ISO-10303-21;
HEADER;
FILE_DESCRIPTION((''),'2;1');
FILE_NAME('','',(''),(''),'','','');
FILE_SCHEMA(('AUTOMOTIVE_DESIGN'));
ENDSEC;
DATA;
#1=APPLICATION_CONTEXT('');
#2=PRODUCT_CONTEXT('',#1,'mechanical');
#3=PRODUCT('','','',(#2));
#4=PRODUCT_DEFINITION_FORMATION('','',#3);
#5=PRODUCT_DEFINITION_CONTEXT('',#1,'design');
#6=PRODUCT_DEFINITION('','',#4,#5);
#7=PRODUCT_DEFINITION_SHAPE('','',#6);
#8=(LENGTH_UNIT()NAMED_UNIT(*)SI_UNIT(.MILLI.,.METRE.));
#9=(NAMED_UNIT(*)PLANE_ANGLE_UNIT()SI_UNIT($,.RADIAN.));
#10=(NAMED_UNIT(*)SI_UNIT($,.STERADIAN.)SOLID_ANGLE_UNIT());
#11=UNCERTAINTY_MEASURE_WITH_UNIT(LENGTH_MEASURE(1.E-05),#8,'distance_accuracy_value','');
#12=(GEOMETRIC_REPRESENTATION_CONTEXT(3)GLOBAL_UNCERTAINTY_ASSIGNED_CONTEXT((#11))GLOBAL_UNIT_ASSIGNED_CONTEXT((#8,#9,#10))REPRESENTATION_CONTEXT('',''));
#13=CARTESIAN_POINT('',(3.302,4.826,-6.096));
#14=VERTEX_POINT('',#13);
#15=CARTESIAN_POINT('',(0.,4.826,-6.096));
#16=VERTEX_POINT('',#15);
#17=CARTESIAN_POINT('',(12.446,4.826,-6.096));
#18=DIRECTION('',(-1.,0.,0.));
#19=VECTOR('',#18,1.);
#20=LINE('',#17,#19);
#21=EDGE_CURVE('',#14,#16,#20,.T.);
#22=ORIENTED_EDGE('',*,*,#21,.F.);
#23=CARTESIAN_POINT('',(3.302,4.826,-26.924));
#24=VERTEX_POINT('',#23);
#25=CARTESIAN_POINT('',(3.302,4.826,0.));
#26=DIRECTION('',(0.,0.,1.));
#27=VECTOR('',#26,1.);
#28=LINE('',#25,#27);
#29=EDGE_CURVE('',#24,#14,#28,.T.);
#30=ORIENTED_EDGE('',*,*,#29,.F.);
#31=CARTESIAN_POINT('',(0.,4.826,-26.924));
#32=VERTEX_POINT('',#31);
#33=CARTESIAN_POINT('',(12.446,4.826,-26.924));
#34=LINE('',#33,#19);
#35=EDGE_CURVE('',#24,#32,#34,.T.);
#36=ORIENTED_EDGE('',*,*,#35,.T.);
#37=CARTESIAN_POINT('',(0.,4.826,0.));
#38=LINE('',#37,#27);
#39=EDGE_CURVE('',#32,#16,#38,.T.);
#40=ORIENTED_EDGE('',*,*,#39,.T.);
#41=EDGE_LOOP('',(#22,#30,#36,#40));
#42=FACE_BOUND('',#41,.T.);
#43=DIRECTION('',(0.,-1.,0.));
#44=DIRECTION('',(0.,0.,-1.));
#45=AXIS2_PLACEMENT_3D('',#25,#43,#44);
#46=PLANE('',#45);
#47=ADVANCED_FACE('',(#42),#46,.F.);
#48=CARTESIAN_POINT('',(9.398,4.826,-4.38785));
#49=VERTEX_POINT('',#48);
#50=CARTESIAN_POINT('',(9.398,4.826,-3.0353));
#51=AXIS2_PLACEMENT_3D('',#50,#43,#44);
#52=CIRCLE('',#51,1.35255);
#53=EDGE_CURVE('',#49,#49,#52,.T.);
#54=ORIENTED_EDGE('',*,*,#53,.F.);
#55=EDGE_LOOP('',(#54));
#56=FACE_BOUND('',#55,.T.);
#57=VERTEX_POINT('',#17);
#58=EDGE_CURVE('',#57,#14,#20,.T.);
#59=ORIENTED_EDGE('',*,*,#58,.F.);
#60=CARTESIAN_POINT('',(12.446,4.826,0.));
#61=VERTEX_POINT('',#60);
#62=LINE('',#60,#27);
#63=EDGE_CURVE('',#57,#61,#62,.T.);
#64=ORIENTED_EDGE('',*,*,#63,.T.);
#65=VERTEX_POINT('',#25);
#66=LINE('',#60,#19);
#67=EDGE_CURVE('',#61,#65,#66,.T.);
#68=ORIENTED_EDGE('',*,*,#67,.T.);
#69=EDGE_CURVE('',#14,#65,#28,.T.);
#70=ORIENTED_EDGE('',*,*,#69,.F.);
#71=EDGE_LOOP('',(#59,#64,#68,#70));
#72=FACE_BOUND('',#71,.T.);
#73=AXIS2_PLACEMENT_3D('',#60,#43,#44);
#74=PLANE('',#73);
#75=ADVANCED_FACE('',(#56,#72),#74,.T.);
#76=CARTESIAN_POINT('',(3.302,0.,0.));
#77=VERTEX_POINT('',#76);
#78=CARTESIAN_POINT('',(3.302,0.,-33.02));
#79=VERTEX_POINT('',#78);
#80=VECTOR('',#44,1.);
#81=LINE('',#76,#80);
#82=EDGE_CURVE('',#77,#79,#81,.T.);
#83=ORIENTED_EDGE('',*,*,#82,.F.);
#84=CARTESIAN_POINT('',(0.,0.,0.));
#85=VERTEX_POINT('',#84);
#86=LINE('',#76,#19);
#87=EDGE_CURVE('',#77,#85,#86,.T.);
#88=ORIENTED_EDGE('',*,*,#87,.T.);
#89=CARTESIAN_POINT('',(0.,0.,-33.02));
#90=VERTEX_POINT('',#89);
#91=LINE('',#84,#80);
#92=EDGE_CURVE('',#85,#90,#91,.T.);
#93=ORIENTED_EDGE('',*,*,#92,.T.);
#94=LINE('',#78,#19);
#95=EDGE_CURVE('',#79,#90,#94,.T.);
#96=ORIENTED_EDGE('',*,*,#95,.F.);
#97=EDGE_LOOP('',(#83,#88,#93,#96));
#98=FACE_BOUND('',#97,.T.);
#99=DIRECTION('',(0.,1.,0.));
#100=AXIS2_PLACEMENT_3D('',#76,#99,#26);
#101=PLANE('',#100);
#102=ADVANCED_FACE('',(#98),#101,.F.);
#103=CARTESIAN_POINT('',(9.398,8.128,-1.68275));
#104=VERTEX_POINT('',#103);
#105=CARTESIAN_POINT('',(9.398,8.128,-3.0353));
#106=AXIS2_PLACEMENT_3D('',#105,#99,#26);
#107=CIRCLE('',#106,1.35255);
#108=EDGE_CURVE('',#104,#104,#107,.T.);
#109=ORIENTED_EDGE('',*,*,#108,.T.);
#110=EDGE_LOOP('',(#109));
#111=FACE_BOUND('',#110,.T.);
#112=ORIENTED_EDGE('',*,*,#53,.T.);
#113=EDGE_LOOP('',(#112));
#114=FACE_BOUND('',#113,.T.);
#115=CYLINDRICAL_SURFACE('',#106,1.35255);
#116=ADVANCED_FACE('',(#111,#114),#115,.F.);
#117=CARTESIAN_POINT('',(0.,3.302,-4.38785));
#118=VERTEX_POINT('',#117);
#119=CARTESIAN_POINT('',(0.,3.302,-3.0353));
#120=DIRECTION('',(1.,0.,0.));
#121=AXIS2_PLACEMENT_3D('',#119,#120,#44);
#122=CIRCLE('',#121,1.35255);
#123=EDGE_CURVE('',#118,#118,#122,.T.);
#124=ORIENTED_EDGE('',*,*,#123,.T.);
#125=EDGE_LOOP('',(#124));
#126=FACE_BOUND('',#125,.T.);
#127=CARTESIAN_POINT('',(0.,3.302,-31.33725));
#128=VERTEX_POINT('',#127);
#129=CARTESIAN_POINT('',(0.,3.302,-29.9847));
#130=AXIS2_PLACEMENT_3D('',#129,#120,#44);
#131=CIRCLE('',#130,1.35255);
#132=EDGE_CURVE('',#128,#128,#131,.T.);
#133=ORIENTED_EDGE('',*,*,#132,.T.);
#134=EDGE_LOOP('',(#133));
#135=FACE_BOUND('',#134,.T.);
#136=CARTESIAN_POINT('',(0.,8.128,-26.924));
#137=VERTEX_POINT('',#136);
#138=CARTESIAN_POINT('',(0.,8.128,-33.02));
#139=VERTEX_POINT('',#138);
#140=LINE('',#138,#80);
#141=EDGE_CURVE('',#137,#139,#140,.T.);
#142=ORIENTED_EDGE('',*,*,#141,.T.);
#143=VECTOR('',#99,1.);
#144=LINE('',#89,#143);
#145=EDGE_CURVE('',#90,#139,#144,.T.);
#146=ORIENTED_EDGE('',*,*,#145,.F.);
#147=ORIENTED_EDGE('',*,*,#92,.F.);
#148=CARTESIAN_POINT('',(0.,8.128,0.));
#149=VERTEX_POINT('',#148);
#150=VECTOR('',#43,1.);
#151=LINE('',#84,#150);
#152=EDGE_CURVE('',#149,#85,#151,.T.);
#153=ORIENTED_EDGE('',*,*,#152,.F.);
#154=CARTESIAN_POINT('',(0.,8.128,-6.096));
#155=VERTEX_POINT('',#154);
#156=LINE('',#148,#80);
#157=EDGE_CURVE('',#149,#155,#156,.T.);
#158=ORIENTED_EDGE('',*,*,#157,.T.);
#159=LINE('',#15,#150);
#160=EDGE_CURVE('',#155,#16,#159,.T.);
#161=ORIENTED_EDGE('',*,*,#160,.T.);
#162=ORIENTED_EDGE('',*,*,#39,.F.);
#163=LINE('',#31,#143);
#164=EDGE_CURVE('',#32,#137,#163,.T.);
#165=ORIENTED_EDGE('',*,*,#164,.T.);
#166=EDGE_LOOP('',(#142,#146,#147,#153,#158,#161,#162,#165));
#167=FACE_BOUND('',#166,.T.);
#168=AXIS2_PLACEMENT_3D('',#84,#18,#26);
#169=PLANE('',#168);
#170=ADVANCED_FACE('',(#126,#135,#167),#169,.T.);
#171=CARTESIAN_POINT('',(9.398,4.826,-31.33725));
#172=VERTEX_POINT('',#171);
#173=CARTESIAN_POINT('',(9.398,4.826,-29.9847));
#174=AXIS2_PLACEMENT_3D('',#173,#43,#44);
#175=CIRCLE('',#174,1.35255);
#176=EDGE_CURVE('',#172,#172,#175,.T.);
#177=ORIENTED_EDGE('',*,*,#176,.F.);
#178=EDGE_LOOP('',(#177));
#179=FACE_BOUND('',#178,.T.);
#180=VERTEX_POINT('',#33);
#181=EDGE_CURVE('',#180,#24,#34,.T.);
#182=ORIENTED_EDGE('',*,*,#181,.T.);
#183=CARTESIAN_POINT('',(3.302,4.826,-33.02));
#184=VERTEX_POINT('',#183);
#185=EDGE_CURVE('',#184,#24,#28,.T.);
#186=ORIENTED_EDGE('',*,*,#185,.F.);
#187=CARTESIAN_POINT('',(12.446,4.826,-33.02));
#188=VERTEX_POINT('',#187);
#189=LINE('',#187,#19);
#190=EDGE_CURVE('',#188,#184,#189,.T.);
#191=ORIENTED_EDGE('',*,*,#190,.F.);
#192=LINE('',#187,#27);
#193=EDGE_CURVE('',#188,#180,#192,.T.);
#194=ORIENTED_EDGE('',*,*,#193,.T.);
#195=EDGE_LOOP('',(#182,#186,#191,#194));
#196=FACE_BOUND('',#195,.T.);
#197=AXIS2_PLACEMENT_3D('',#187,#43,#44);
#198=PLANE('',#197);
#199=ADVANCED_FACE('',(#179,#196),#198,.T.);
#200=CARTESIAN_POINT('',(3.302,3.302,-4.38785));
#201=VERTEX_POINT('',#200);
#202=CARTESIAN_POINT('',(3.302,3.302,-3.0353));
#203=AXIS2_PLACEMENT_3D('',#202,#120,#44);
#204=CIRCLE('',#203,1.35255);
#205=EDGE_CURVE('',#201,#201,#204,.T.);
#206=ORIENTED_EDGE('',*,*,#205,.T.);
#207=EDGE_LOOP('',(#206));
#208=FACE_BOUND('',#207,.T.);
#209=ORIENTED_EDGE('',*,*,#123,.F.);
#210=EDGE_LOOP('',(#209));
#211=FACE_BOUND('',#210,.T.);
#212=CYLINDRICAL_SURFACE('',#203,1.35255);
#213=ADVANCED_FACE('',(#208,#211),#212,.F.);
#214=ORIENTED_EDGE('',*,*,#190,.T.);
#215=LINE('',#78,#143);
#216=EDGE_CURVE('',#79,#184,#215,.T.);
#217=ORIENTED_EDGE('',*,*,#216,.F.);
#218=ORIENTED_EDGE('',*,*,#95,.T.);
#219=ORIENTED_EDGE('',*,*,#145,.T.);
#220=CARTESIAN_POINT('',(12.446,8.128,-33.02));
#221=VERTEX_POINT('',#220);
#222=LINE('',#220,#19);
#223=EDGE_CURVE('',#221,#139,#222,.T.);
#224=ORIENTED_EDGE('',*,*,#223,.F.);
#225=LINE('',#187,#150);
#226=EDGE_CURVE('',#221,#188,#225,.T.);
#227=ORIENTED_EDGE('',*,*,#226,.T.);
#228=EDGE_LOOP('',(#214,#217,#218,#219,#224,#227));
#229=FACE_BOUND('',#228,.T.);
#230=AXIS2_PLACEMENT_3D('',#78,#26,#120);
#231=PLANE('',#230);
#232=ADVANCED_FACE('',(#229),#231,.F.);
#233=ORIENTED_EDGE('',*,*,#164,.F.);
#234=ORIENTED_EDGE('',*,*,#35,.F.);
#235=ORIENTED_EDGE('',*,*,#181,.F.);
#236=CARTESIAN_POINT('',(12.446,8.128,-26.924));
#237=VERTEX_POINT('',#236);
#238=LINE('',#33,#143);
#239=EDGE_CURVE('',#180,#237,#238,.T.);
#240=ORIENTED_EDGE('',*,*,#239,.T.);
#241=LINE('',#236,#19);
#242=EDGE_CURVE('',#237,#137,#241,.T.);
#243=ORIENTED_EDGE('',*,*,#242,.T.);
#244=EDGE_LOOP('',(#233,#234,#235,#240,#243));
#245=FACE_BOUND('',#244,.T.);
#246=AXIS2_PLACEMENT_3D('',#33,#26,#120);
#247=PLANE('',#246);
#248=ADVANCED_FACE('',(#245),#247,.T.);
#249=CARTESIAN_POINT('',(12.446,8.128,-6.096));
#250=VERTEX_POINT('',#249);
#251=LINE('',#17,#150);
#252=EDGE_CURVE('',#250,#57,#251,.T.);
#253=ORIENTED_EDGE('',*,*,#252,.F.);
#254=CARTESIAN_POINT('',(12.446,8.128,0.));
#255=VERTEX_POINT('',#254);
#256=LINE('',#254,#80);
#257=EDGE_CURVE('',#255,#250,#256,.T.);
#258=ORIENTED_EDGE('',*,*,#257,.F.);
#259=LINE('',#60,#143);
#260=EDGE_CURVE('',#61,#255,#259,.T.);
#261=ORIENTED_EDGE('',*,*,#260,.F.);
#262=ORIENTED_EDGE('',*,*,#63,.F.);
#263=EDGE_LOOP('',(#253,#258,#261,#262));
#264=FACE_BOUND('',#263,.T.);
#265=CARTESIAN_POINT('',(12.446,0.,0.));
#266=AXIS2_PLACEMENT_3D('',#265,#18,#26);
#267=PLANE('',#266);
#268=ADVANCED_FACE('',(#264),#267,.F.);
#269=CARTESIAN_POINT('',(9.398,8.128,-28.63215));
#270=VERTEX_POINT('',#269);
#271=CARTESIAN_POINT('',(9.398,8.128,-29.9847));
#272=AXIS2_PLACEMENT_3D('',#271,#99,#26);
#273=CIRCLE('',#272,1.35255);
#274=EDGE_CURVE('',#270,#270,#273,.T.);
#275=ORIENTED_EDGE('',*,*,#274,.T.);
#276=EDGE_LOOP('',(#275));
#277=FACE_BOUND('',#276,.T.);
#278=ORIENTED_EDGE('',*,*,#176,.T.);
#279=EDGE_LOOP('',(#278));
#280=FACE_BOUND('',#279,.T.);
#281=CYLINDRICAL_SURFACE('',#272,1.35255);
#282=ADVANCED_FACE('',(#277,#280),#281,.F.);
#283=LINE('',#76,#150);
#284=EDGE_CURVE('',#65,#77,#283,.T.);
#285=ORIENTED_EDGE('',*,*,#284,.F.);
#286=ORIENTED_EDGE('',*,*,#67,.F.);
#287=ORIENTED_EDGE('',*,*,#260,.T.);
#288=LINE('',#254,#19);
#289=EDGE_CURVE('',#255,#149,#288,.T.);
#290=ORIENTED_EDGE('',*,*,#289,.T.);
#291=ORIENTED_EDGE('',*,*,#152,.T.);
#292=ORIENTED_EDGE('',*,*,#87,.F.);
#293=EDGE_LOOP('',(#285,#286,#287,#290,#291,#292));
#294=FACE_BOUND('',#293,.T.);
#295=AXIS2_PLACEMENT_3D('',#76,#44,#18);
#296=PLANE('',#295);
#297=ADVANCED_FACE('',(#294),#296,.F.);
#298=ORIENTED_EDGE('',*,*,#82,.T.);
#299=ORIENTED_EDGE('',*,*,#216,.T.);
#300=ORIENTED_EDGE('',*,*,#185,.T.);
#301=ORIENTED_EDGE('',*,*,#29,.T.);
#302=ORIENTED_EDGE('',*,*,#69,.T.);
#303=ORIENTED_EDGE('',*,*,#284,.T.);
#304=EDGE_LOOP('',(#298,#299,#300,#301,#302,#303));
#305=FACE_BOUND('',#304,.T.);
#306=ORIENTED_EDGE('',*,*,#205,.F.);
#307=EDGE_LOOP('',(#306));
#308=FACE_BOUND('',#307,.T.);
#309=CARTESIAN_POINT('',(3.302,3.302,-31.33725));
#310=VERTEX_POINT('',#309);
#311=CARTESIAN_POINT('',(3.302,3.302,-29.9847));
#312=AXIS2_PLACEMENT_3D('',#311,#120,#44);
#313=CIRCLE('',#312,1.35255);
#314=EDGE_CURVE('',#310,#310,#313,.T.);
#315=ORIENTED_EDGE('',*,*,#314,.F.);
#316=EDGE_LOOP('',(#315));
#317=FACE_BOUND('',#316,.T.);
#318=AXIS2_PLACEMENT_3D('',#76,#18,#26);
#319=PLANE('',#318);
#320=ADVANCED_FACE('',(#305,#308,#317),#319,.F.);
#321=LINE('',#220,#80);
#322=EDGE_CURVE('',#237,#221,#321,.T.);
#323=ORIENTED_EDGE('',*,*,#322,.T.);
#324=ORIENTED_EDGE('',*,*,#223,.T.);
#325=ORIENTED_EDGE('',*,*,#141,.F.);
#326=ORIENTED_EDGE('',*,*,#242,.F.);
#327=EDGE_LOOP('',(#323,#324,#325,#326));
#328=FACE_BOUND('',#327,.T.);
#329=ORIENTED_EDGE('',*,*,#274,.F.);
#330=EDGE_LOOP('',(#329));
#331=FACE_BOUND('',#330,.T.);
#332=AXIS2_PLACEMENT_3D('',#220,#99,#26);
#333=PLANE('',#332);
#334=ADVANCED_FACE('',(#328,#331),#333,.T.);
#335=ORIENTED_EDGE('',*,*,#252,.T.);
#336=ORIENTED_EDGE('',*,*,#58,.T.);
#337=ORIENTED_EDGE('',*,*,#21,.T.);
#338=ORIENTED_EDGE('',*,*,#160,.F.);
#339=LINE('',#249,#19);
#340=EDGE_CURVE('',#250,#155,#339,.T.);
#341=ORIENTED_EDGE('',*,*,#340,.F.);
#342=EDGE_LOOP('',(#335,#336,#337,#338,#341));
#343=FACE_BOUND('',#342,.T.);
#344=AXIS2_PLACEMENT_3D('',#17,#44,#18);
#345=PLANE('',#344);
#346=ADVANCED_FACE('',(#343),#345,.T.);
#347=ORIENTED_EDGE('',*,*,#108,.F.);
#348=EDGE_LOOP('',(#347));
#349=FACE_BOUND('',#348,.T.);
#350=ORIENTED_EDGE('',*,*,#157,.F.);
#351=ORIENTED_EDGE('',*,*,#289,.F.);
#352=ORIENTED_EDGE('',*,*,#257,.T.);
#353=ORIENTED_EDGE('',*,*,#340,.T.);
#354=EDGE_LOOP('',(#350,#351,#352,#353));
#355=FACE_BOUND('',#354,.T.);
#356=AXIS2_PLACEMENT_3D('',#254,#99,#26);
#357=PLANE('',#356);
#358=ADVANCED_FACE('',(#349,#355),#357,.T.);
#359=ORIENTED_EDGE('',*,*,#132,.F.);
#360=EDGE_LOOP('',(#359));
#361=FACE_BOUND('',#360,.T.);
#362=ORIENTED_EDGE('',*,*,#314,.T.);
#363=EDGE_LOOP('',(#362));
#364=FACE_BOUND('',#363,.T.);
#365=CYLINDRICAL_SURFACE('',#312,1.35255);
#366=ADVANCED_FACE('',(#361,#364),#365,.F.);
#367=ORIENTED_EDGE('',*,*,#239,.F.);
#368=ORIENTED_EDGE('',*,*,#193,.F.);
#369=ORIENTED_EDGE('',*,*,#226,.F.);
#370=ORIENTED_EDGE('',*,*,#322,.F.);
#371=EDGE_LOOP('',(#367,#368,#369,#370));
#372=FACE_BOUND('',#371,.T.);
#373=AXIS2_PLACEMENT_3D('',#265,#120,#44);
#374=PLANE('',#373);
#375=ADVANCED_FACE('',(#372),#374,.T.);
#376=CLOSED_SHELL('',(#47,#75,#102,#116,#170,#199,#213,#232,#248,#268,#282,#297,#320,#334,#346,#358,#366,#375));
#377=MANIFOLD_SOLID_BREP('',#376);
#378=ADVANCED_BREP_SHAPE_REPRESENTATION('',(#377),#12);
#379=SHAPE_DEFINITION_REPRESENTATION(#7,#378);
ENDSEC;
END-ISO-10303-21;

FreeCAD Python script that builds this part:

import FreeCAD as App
import Part
import Sketcher
from FreeCAD import Vector
Q = App.Units.Quantity

doc = App.newDocument("Part")
body = doc.addObject("PartDesign::Body", "Body")

# Sketch on YZ plane
sketch1 = body.newObject("Sketcher::SketchObject", "Sketch")
sketch1.AttachmentSupport = (doc.getObject("YZ_Plane"), [""])
sketch1.MapMode = "FlatFace"
sketch1.addGeometry([
    Part.LineSegment(Vector(4.8, 0, 0), Vector(0, 0, 0)),
    Part.LineSegment(Vector(0, 0, 0), Vector(0, -33, 0)),
    Part.LineSegment(Vector(0, -33, 0), Vector(4.8, -33, 0)),
    Part.LineSegment(Vector(4.8, -33, 0), Vector(4.8, 0, 0)),
], False)
sketch1.addConstraint([
    Sketcher.Constraint("Coincident", 0, 2, 1, 1),
    Sketcher.Constraint("Coincident", 1, 2, 2, 1),
    Sketcher.Constraint("Coincident", 2, 2, 3, 1),
    Sketcher.Constraint("Coincident", 3, 2, 0, 1),
    Sketcher.Constraint("Horizontal", 0),
    Sketcher.Constraint("Vertical", 1),
    Sketcher.Constraint("Horizontal", 2),
    Sketcher.Constraint("Vertical", 3),
    Sketcher.Constraint("Coincident", 0, 2, -1, 1),
    Sketcher.Constraint("DistanceY", 1, 2, 1, 1, Q("1.3 in")),
    Sketcher.Constraint("DistanceX", 0, 2, 0, 1, Q("0.19 in")),
])
pad1 = body.newObject("PartDesign::Pad", "Pad")
pad1.Profile = sketch1
pad1.Length = Q("0.13 in")

# Sketch on YZ plane
sketch2 = body.newObject("Sketcher::SketchObject", "Sketch001")
sketch2.AttachmentSupport = (doc.getObject("YZ_Plane"), [""])
sketch2.MapMode = "FlatFace"
sketch2.addGeometry([
    Part.LineSegment(Vector(8.1, -33, 0), Vector(4.8, -33, 0)),  # 0
    Part.LineSegment(Vector(4.8, -33, 0), Vector(4.8, -26.9, 0)),  # 1
    Part.LineSegment(Vector(4.8, -26.9, 0), Vector(8.1, -26.9, 0)),  # 2
    Part.LineSegment(Vector(8.1, -26.9, 0), Vector(8.1, -33, 0)),  # 3
    Part.LineSegment(Vector(8.1, -6.1, 0), Vector(4.8, -6.1, 0)),  # 4
    Part.LineSegment(Vector(4.8, -6.1, 0), Vector(4.8, 0, 0)),  # 5
    Part.LineSegment(Vector(4.8, 0, 0), Vector(8.1, 0, 0)),  # 6
    Part.LineSegment(Vector(8.1, 0, 0), Vector(8.1, -6.1, 0)),  # 7
], False)
sketch2.addConstraint([
    Sketcher.Constraint("Coincident", 0, 2, 1, 1),
    Sketcher.Constraint("Coincident", 1, 2, 2, 1),
    Sketcher.Constraint("Coincident", 2, 2, 3, 1),
    Sketcher.Constraint("Coincident", 3, 2, 0, 1),
    Sketcher.Constraint("Coincident", 4, 2, 5, 1),
    Sketcher.Constraint("Coincident", 5, 2, 6, 1),
    Sketcher.Constraint("Coincident", 6, 2, 7, 1),
    Sketcher.Constraint("Coincident", 7, 2, 4, 1),
    Sketcher.Constraint("Horizontal", 0),
    Sketcher.Constraint("Vertical", 1),
    Sketcher.Constraint("Horizontal", 2),
    Sketcher.Constraint("Vertical", 3),
    Sketcher.Constraint("Horizontal", 4),
    Sketcher.Constraint("Vertical", 5),
    Sketcher.Constraint("Horizontal", 6),
    Sketcher.Constraint("Vertical", 7),
    Sketcher.Constraint("PointOnObject", 5, 2, -1),
    Sketcher.Constraint("Vertical", 1, 2, 4, 2),
    Sketcher.Constraint("Vertical", 3, 2, 6, 2),
    Sketcher.Constraint("Equal", 3, 5),
    Sketcher.Constraint("DistanceX", 0, 2, 0, 1, Q("0.13 in")),
    Sketcher.Constraint("DistanceY", 1, 1, 1, 2, Q("0.24 in")),
    Sketcher.Constraint("DistanceY", 0, 2, -1, 1, Q("1.3 in")),
    Sketcher.Constraint("DistanceX", -1, 1, 0, 2, Q("0.19 in")),
])
pad2 = body.newObject("PartDesign::Pad", "Pad001")
pad2.Profile = sketch2
pad2.Length = Q("0.49 in")

# Sketch on YZ plane
sketch3 = body.newObject("Sketcher::SketchObject", "Sketch002")
sketch3.AttachmentSupport = (doc.getObject("YZ_Plane"), [""])
sketch3.MapMode = "FlatFace"
sketch3.AttachmentOffset = App.Placement(Vector(0, 0, 0.13 * 25.4), App.Rotation())
sketch3.addGeometry([
    Part.Circle(Vector(3.3, -3, 0), Vector(0, 0, 1), 1.4),
    Part.Circle(Vector(3.3, -30, 0), Vector(0, 0, 1), 1.4),
], False)
sketch3.addConstraint([
    Sketcher.Constraint("Equal", 0, 1),
    Sketcher.Constraint("Vertical", 0, 3, 1, 3),
    Sketcher.Constraint("Diameter", 0, Q("0.1065 in")),
    Sketcher.Constraint("DistanceX", -1, 1, 0, 3, Q("0.13 in")),
    Sketcher.Constraint("DistanceY", 1, 3, 0, 3, Q("1.061 in")),
    Sketcher.Constraint("DistanceY", 0, 3, -1, 1, Q("0.1195 in")),
])
doc.recompute()
hole = body.newObject("PartDesign::Hole", "Hole")
hole.Profile = sketch3
hole.ThreadType = "None"
hole.Diameter = Q("0.1065 in")
hole.DepthType = "ThroughAll"

# Sketch on XZ plane
sketch4 = body.newObject("Sketcher::SketchObject", "Sketch003")
sketch4.AttachmentSupport = (doc.getObject("XZ_Plane"), [""])
sketch4.MapMode = "FlatFace"
sketch4.AttachmentOffset = App.Placement(Vector(0, 0, -0.32 * 25.4), App.Rotation())
sketch4.addGeometry([
    Part.Circle(Vector(9.4, -3, 0), Vector(0, 0, 1), 1.4),
    Part.Circle(Vector(9.4, -30, 0), Vector(0, 0, 1), 1.4),
], False)
sketch4.addConstraint([
    Sketcher.Constraint("Equal", 0, 1),
    Sketcher.Constraint("Vertical", 0, 3, 1, 3),
    Sketcher.Constraint("Diameter", 0, Q("0.1065 in")),
    Sketcher.Constraint("DistanceX", -1, 1, 0, 3, Q("0.37 in")),
    Sketcher.Constraint("DistanceY", 1, 3, 0, 3, Q("1.061 in")),
    Sketcher.Constraint("DistanceY", 0, 3, -1, 1, Q("0.1195 in")),
])
doc.recompute()
hole2 = body.newObject("PartDesign::Hole", "Hole001")
hole2.Profile = sketch4
hole2.ThreadType = "None"
hole2.Diameter = Q("0.1065 in")
hole2.DepthType = "ThroughAll"
hole2.Reversed = True

doc.recompute()
